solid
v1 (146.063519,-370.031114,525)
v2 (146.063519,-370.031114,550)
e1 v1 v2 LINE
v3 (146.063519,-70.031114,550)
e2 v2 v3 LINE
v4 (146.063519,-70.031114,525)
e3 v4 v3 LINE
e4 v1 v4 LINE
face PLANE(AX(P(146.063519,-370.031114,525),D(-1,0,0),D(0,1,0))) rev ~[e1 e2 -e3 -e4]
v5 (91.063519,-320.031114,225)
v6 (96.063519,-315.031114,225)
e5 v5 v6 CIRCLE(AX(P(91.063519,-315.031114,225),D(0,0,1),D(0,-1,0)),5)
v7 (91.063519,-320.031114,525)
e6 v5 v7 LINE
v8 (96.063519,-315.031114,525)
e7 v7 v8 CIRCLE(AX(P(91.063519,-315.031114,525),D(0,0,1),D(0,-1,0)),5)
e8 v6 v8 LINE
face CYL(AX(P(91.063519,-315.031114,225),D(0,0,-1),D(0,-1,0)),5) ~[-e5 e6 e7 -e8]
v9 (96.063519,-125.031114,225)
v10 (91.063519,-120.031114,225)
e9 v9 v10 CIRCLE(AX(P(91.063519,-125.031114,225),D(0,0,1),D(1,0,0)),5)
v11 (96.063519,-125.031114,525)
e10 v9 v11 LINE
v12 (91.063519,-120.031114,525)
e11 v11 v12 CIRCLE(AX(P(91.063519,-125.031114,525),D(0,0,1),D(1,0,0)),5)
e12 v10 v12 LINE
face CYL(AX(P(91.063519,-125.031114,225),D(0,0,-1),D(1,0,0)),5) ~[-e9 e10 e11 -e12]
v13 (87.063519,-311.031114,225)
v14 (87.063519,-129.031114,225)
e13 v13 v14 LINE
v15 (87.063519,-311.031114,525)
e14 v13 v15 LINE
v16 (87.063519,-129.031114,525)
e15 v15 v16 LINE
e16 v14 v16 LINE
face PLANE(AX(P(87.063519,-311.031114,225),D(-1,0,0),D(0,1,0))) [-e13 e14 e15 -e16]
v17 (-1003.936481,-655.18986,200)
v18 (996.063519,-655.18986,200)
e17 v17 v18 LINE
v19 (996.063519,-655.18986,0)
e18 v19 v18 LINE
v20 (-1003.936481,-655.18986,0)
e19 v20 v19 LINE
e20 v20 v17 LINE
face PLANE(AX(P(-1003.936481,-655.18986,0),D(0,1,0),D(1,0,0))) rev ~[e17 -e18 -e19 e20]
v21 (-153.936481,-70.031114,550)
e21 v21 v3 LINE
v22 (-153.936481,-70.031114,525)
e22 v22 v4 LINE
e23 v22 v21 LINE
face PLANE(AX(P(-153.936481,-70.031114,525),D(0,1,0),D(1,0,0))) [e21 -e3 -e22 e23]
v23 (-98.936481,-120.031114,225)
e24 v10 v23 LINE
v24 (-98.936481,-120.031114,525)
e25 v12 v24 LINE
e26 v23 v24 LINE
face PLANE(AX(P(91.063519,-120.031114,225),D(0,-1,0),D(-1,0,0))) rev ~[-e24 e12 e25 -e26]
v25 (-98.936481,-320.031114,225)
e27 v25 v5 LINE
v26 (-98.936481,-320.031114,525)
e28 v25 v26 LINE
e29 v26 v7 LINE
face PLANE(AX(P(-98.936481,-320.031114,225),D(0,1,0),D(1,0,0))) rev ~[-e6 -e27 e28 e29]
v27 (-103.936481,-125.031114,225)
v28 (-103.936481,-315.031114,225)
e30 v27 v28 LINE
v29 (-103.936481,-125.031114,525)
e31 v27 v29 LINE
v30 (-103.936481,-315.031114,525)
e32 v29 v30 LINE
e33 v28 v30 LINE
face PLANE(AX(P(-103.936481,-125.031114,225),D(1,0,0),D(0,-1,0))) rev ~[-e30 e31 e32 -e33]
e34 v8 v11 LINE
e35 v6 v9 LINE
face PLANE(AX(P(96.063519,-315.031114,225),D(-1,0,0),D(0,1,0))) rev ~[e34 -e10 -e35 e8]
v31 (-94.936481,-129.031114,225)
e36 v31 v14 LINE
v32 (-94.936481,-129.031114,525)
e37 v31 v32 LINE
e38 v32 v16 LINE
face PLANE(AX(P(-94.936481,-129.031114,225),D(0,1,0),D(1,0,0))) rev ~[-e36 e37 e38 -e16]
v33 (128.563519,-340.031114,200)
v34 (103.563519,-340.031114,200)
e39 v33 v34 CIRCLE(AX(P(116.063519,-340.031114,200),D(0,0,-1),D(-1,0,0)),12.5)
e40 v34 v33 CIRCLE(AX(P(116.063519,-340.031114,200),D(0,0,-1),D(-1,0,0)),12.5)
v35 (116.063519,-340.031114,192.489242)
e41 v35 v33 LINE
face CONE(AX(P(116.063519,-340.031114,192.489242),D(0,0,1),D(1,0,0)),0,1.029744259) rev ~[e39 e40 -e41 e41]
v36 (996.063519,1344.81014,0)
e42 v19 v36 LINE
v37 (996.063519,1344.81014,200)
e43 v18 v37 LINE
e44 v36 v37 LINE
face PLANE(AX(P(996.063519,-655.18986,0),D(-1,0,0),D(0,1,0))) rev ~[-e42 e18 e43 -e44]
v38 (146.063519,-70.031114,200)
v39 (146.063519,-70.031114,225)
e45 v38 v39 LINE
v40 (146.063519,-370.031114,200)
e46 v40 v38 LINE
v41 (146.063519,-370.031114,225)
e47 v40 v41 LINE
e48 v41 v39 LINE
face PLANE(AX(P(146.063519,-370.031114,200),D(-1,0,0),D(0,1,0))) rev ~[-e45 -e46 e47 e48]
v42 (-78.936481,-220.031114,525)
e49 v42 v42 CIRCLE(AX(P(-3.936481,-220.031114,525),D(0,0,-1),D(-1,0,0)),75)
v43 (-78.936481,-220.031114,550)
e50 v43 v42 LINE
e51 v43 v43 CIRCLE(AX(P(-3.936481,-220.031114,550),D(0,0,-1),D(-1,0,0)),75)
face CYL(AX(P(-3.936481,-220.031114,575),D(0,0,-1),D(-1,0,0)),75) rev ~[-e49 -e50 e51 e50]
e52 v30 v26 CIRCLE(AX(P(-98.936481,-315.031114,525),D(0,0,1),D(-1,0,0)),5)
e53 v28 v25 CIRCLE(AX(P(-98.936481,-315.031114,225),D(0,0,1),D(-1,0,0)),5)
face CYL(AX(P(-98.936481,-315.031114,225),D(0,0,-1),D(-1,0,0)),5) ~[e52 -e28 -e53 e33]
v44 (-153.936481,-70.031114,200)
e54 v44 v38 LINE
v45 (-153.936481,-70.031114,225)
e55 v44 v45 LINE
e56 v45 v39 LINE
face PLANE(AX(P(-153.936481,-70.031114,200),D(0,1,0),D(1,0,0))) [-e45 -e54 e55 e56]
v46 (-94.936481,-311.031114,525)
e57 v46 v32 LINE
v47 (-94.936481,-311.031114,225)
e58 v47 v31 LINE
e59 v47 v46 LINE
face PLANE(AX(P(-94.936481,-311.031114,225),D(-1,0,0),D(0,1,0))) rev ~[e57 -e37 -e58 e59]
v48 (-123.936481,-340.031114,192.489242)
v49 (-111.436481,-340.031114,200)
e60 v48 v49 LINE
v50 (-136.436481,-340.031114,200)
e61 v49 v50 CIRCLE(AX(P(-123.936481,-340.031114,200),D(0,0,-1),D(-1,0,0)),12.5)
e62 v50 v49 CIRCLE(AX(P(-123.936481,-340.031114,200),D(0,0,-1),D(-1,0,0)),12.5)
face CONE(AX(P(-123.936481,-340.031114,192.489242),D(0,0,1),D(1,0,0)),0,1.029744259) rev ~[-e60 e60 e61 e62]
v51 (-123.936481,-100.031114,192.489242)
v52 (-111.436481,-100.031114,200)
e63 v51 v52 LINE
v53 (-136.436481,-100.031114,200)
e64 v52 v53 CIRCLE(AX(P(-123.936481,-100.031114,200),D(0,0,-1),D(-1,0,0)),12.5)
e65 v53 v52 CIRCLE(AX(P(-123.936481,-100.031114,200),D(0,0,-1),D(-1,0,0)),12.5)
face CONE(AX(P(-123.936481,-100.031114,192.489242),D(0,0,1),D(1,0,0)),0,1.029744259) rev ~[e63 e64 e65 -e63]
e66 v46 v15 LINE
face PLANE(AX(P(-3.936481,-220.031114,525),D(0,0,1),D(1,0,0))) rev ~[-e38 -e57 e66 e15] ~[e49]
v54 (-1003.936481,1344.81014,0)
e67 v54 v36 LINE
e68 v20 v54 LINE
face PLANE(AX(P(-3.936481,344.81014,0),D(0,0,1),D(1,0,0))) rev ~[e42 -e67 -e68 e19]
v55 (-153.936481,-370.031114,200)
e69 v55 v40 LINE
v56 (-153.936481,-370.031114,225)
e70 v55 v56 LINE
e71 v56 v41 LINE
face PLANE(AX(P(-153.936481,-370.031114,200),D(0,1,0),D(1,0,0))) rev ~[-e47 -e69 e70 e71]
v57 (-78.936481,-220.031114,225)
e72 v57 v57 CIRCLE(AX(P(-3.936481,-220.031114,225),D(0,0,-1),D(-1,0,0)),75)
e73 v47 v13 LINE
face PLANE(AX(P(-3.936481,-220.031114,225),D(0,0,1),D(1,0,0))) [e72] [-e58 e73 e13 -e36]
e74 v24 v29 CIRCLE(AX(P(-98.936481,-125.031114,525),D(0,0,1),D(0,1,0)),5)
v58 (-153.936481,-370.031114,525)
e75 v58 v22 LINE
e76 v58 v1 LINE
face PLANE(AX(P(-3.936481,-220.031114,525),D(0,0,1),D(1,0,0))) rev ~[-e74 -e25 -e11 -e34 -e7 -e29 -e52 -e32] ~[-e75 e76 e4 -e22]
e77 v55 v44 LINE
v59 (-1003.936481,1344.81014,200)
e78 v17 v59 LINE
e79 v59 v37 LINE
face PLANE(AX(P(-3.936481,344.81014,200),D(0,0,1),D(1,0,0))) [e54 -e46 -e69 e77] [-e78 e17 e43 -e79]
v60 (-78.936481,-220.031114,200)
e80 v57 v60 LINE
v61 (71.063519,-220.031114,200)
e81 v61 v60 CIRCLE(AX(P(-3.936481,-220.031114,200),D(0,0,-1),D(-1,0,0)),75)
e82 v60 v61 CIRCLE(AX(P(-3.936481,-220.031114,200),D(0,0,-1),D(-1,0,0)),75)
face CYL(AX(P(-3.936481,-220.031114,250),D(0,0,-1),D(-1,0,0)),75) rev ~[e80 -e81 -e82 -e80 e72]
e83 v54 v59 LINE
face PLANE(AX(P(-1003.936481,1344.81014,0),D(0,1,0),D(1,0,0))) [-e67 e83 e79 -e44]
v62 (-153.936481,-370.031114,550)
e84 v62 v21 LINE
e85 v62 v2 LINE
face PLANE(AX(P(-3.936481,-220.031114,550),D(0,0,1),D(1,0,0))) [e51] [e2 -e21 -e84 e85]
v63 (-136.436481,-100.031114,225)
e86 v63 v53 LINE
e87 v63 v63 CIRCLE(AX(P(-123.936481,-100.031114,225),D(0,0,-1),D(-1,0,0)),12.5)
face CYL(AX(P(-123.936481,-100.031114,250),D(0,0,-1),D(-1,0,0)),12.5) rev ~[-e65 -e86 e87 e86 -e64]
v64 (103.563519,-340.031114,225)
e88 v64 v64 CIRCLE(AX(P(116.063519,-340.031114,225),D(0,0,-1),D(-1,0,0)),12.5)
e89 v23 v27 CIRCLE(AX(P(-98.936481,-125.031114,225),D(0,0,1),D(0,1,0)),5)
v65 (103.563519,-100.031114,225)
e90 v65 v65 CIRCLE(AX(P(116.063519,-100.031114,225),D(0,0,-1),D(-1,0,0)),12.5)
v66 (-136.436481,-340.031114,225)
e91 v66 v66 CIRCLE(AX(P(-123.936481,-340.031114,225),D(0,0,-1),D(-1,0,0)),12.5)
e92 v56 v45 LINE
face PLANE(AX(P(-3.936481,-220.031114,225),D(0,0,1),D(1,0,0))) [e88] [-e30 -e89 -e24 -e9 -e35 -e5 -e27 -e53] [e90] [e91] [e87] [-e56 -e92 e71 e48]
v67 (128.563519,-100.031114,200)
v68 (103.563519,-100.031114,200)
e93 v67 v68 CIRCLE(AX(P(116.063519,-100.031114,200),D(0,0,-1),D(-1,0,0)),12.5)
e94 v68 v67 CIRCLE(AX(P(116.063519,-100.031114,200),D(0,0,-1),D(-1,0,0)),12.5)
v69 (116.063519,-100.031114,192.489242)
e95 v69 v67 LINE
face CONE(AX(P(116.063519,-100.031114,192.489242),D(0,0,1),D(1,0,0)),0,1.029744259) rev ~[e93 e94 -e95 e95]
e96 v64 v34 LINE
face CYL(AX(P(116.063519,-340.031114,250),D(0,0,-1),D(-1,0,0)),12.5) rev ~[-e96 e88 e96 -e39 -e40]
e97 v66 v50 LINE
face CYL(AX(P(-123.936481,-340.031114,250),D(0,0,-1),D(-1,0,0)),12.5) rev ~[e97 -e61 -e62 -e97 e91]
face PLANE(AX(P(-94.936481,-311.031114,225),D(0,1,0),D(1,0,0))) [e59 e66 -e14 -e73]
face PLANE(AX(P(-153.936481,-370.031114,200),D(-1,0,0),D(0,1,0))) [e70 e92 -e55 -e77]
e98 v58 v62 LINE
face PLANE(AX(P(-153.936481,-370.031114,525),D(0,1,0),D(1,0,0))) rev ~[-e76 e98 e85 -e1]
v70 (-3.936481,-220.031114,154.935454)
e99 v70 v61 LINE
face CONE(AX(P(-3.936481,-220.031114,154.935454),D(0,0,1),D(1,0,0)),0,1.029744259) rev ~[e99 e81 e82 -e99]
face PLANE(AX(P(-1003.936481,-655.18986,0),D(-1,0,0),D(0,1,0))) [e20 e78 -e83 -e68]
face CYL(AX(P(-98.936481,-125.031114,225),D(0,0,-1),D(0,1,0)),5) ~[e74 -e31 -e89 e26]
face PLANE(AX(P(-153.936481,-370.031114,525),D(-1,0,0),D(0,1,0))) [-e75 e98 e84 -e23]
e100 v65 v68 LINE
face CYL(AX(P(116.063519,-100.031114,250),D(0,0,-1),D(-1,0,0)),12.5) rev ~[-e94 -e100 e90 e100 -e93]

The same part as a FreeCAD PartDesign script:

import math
import FreeCAD as App
import Part
import Sketcher
from FreeCAD import Vector


def add_polygon(sketch, points):
    """Adds a closed chain of lines whose ends are joined by coincident constraints."""
    first, n = sketch.GeometryCount, len(points)
    for a, b in zip(points, points[1:] + points[:1]):
        sketch.addGeometry(Part.LineSegment(App.Vector(*a, 0), App.Vector(*b, 0)), False)
    for i in range(n):
        sketch.addConstraint(Sketcher.Constraint("Coincident", first + i, 2, first + (i + 1) % n, 1))

doc = App.newDocument("Part")
body = doc.addObject("PartDesign::Body", "Body")

# Sketch on XY plane
sketch1 = body.newObject("Sketcher::SketchObject", "Sketch")
sketch1.AttachmentSupport = (doc.getObject("XY_Plane"), [""])
sketch1.MapMode = "FlatFace"
add_polygon(sketch1, [(-1004, 1345), (-1004, -655), (996, -655), (996, 1345)])  # lines 0-3
sketch1.addConstraint([
    Sketcher.Constraint("Vertical", 0),
    Sketcher.Constraint("Horizontal", 1),
    Sketcher.Constraint("Vertical", 2),
    Sketcher.Constraint("Horizontal", 3),
    Sketcher.Constraint("Equal", 3, 0),
    Sketcher.Constraint("DistanceX", 1, 1, 1, 2, 2000.0),
    Sketcher.Constraint("DistanceX", 0, 2, -1, 1, 1003.936481),
    Sketcher.Constraint("DistanceY", 0, 2, -1, 1, 655.18986),
])
pad1 = body.newObject("PartDesign::Pad", "Pad")
pad1.Profile = sketch1
pad1.Length = 200

# Sketch on XY plane
sketch2 = body.newObject("Sketcher::SketchObject", "Sketch001")
sketch2.AttachmentSupport = (doc.getObject("XY_Plane"), [""])
sketch2.MapMode = "FlatFace"
sketch2.AttachmentOffset = App.Placement(Vector(0, 0, 200), App.Rotation())
add_polygon(sketch2, [(-154, -70), (-154, -370), (146, -370), (146, -70)])  # lines 0-3
sketch2.addConstraint([
    Sketcher.Constraint("Vertical", 0),
    Sketcher.Constraint("Horizontal", 1),
    Sketcher.Constraint("Vertical", 2),
    Sketcher.Constraint("Horizontal", 3),
    Sketcher.Constraint("Equal", 3, 0),
    Sketcher.Constraint("DistanceX", 1, 1, 1, 2, 300.0),
    Sketcher.Constraint("DistanceX", 0, 2, -1, 1, 153.936481),
    Sketcher.Constraint("DistanceY", 0, 2, -1, 1, 370.031114),
])
pad2 = body.newObject("PartDesign::Pad", "Pad001")
pad2.Profile = sketch2
pad2.Length = 25

# Sketch on XY plane
sketch3 = body.newObject("Sketcher::SketchObject", "Sketch002")
sketch3.AttachmentSupport = (doc.getObject("XY_Plane"), [""])
sketch3.MapMode = "FlatFace"
sketch3.AttachmentOffset = App.Placement(Vector(0, 0, 225), App.Rotation())
sketch3.addGeometry([
    Part.Circle(Vector(-124, -100, 0), Vector(0, 0, 1), 12),
    Part.Circle(Vector(-124, -340, 0), Vector(0, 0, 1), 12),
    Part.Circle(Vector(116, -340, 0), Vector(0, 0, 1), 12),
    Part.Circle(Vector(116, -100, 0), Vector(0, 0, 1), 12),
], False)
sketch3.addConstraint([
    Sketcher.Constraint("Equal", 0, 1),
    Sketcher.Constraint("Equal", 1, 2),
    Sketcher.Constraint("Equal", 2, 3),
    Sketcher.Constraint("Horizontal", 1, 3, 2, 3),
    Sketcher.Constraint("Horizontal", 0, 3, 3, 3),
    Sketcher.Constraint("Vertical", 0, 3, 1, 3),
    Sketcher.Constraint("Vertical", 2, 3, 3, 3),
    Sketcher.Constraint("Diameter", 0, 25.0),
    Sketcher.Constraint("DistanceY", 1, 3, 0, 3, 240.0),
    Sketcher.Constraint("DistanceX", 1, 3, 2, 3, 240.0),
    Sketcher.Constraint("DistanceX", 0, 3, -1, 1, 123.936481),
    Sketcher.Constraint("DistanceY", 0, 3, -1, 1, 100.031114),
])
doc.recompute()
hole = body.newObject("PartDesign::Hole", "Hole")
hole.Profile = sketch3
hole.ThreadType = "None"
hole.Diameter = 25
hole.DepthType = "Dimension"
hole.Depth = 25
hole.DrillPoint = "Angled"
hole.DrillPointAngle = 118

# Sketch on XY plane
sketch4 = body.newObject("Sketcher::SketchObject", "Sketch003")
sketch4.AttachmentSupport = (doc.getObject("XY_Plane"), [""])
sketch4.MapMode = "FlatFace"
sketch4.AttachmentOffset = App.Placement(Vector(0, 0, 225), App.Rotation())
sketch4.addGeometry(Part.Circle(Vector(-4, -220, 0), Vector(0, 0, 1), 75), False)
sketch4.addConstraint([
    Sketcher.Constraint("Diameter", 0, 150.0),
    Sketcher.Constraint("DistanceX", 0, 3, -1, 1, 3.936481),
    Sketcher.Constraint("DistanceY", 0, 3, -1, 1, 220.031114),
])
doc.recompute()
hole2 = body.newObject("PartDesign::Hole", "Hole001")
hole2.Profile = sketch4
hole2.ThreadType = "None"
hole2.Diameter = 150
hole2.DepthType = "Dimension"
hole2.Depth = 25
hole2.DrillPoint = "Angled"
hole2.DrillPointAngle = 118

# Sketch on XY plane
sketch5 = body.newObject("Sketcher::SketchObject", "Sketch004")
sketch5.AttachmentSupport = (doc.getObject("XY_Plane"), [""])
sketch5.MapMode = "FlatFace"
sketch5.AttachmentOffset = App.Placement(Vector(0, 0, 225), App.Rotation())
sketch5.addGeometry(Part.LineSegment(Vector(91, -120, 0), Vector(-99, -120, 0)), False)  # 0
sketch5.addGeometry(Part.ArcOfCircle(Part.Circle(Vector(-99, -125, 0), Vector(0, 0, 1), 5), math.radians(90), math.radians(180)), False)  # 1
sketch5.addGeometry(Part.LineSegment(Vector(-104, -125, 0), Vector(-104, -315, 0)), False)  # 2
sketch5.addGeometry(Part.ArcOfCircle(Part.Circle(Vector(-99, -315, 0), Vector(0, 0, 1), 5), math.radians(-180), math.radians(-90)), False)  # 3
sketch5.addGeometry(Part.LineSegment(Vector(-99, -320, 0), Vector(91, -320, 0)), False)  # 4
sketch5.addGeometry(Part.ArcOfCircle(Part.Circle(Vector(91, -315, 0), Vector(0, 0, 1), 5), math.radians(-90), math.radians(0)), False)  # 5
sketch5.addGeometry(Part.LineSegment(Vector(96, -315, 0), Vector(96, -125, 0)), False)  # 6
sketch5.addGeometry(Part.ArcOfCircle(Part.Circle(Vector(91, -125, 0), Vector(0, 0, 1), 5), math.radians(0), math.radians(90)), False)  # 7
add_polygon(sketch5, [(87, -311), (-95, -311), (-95, -129), (87, -129)])  # lines 8-11
sketch5.addConstraint([
    Sketcher.Constraint("Tangent", 0, 2, 1, 1),
    Sketcher.Constraint("Tangent", 1, 2, 2, 1),
    Sketcher.Constraint("Tangent", 2, 2, 3, 1),
    Sketcher.Constraint("Tangent", 3, 2, 4, 1),
    Sketcher.Constraint("Tangent", 4, 2, 5, 1),
    Sketcher.Constraint("Tangent", 5, 2, 6, 1),
    Sketcher.Constraint("Tangent", 6, 2, 7, 1),
    Sketcher.Constraint("Tangent", 7, 2, 0, 1),
    Sketcher.Constraint("Horizontal", 0),
    Sketcher.Constraint("Vertical", 2),
    Sketcher.Constraint("Horizontal", 4),
    Sketcher.Constraint("Vertical", 6),
    Sketcher.Constraint("Horizontal", 8),
    Sketcher.Constraint("Vertical", 9),
    Sketcher.Constraint("Horizontal", 10),
    Sketcher.Constraint("Vertical", 11),
    Sketcher.Constraint("Equal", 1, 3),
    Sketcher.Constraint("Equal", 3, 5),
    Sketcher.Constraint("Equal", 5, 7),
    Sketcher.Constraint("Equal", 4, 2),
    Sketcher.Constraint("Equal", 10, 9),
    Sketcher.Constraint("Radius", 1, 5.0),
    Sketcher.Constraint("DistanceX", 0, 2, 0, 1, 190.0),
    Sketcher.Constraint("DistanceX", 8, 2, 8, 1, 182.0),
    Sketcher.Constraint("DistanceX", 3, 3, 8, 2, 4.0),
    Sketcher.Constraint("DistanceY", 3, 3, 8, 2, 4.0),
    Sketcher.Constraint("DistanceX", 1, 3, -1, 1, 98.936481),
    Sketcher.Constraint("DistanceY", 1, 3, -1, 1, 125.031114),
])
pad3 = body.newObject("PartDesign::Pad", "Pad002")
pad3.Profile = sketch5
pad3.Length = 300

# Sketch on XY plane
sketch6 = body.newObject("Sketcher::SketchObject", "Sketch005")
sketch6.AttachmentSupport = (doc.getObject("XY_Plane"), [""])
sketch6.MapMode = "FlatFace"
sketch6.AttachmentOffset = App.Placement(Vector(0, 0, 525), App.Rotation())
add_polygon(sketch6, [(-154, -70), (-154, -370), (146, -370), (146, -70)])  # lines 0-3
sketch6.addConstraint([
    Sketcher.Constraint("Vertical", 0),
    Sketcher.Constraint("Horizontal", 1),
    Sketcher.Constraint("Vertical", 2),
    Sketcher.Constraint("Horizontal", 3),
    Sketcher.Constraint("Equal", 3, 0),
    Sketcher.Constraint("DistanceX", 1, 1, 1, 2, 300.0),
    Sketcher.Constraint("DistanceX", 0, 2, -1, 1, 153.936481),
    Sketcher.Constraint("DistanceY", 0, 2, -1, 1, 370.031114),
])
pad4 = body.newObject("PartDesign::Pad", "Pad003")
pad4.Profile = sketch6
pad4.Length = 25

# Sketch on XY plane
sketch7 = body.newObject("Sketcher::SketchObject", "Sketch006")
sketch7.AttachmentSupport = (doc.getObject("XY_Plane"), [""])
sketch7.MapMode = "FlatFace"
sketch7.AttachmentOffset = App.Placement(Vector(0, 0, 550), App.Rotation())
sketch7.addGeometry(Part.Circle(Vector(-4, -220, 0), Vector(0, 0, 1), 75), False)
sketch7.addConstraint([
    Sketcher.Constraint("Diameter", 0, 150.0),
    Sketcher.Constraint("DistanceX", 0, 3, -1, 1, 3.936481),
    Sketcher.Constraint("DistanceY", 0, 3, -1, 1, 220.031114),
])
doc.recompute()
hole3 = body.newObject("PartDesign::Hole", "Hole002")
hole3.Profile = sketch7
hole3.ThreadType = "None"
hole3.Diameter = 150
hole3.DepthType = "Dimension"
hole3.Depth = 25
hole3.DrillPoint = "Angled"
hole3.DrillPointAngle = 118

doc.recompute()
